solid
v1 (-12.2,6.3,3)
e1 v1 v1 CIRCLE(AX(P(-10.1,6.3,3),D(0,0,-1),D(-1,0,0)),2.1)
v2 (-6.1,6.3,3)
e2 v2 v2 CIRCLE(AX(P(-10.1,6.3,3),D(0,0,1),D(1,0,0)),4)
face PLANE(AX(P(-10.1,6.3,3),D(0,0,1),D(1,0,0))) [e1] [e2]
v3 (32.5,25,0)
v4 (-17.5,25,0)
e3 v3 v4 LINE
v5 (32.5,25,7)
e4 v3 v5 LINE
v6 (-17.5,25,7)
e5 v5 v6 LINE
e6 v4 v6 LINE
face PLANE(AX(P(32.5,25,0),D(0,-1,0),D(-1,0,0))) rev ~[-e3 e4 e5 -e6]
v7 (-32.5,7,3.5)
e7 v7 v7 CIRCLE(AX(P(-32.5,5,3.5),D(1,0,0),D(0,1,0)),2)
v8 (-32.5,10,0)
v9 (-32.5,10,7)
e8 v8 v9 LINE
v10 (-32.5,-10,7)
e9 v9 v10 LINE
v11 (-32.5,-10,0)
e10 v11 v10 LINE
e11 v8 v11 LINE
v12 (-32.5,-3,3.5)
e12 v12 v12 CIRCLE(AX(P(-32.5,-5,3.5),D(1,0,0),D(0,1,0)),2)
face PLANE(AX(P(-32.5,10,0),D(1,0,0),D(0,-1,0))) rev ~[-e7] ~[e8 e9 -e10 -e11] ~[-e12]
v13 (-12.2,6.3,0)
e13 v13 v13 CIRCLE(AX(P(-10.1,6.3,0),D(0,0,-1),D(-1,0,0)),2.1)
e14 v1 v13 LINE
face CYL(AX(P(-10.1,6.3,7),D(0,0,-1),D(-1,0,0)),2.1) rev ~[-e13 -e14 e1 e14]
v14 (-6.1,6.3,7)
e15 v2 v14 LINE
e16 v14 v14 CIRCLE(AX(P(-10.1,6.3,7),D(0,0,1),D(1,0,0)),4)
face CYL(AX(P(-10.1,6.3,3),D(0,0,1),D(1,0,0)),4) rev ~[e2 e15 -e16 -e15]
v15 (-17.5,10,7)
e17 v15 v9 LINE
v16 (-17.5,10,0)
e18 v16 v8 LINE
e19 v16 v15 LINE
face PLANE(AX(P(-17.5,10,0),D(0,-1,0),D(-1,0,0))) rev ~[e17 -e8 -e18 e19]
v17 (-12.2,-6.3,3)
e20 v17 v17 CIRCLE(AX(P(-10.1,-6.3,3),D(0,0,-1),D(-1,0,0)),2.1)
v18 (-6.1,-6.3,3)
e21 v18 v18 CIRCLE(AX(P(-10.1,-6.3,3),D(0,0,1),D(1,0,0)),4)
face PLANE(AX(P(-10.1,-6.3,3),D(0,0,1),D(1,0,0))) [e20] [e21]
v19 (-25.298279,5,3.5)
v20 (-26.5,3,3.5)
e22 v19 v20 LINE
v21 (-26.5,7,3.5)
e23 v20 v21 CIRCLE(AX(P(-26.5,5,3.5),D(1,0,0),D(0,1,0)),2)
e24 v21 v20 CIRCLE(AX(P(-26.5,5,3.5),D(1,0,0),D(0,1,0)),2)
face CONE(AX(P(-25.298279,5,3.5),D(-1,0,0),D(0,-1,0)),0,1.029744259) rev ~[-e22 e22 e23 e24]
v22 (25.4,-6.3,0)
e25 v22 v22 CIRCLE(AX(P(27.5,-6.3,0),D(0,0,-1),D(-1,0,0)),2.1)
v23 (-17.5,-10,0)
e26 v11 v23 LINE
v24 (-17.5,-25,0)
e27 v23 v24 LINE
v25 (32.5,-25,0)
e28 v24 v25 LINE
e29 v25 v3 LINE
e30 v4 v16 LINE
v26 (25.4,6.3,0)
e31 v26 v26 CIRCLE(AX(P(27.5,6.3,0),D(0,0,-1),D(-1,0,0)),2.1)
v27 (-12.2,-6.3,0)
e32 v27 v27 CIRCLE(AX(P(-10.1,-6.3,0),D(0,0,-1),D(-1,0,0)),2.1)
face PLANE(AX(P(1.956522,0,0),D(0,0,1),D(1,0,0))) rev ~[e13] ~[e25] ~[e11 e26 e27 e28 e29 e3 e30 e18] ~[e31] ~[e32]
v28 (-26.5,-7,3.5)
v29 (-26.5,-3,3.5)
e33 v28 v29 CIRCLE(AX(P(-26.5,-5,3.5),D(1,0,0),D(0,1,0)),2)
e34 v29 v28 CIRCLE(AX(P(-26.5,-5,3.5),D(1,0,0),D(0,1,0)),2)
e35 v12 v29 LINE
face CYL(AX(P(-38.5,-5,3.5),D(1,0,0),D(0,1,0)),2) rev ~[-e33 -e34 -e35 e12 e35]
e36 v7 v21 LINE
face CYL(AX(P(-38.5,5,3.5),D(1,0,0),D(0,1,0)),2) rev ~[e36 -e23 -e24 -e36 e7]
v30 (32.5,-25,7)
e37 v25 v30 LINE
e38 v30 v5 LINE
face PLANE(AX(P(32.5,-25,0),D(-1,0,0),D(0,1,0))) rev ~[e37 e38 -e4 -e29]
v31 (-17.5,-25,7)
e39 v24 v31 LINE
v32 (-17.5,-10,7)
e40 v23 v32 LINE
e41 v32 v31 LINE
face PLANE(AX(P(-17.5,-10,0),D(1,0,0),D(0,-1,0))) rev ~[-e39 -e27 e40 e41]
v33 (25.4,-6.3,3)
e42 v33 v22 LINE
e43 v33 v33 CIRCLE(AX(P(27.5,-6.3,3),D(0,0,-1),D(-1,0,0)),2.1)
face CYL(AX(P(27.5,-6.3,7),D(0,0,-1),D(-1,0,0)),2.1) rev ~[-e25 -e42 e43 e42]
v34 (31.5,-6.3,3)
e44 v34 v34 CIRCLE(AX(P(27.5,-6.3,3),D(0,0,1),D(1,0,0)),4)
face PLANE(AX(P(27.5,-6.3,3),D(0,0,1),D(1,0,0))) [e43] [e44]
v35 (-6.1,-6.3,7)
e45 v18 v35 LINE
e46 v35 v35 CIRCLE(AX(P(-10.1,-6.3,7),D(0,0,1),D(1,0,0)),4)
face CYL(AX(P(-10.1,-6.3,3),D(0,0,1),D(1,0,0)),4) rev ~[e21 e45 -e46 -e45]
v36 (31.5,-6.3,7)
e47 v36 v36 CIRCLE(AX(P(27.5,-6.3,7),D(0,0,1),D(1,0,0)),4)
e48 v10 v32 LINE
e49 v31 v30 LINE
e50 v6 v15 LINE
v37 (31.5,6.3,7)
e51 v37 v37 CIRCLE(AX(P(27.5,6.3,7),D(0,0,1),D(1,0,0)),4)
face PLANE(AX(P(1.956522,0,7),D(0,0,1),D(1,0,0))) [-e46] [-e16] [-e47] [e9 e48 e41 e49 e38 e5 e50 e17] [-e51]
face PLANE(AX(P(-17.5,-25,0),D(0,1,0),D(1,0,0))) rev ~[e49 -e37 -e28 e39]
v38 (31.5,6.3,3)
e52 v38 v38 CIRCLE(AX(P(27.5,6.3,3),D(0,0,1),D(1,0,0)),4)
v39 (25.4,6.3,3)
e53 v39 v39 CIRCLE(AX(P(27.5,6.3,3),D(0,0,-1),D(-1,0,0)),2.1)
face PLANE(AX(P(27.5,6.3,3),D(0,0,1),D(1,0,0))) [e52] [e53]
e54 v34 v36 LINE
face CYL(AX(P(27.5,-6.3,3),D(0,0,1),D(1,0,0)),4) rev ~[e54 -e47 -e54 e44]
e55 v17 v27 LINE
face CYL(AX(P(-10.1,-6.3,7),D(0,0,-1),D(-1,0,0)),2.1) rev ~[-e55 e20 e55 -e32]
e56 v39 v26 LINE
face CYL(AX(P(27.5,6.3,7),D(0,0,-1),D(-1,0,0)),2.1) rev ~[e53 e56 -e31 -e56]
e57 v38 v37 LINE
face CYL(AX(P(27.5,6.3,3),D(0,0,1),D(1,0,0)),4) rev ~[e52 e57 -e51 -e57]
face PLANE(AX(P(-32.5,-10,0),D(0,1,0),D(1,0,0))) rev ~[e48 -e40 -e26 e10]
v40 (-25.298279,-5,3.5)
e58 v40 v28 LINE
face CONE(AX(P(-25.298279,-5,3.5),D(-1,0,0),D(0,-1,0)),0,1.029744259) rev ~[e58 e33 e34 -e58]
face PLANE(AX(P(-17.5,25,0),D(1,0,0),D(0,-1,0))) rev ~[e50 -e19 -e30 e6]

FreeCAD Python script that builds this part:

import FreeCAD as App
import Part
import Sketcher
from FreeCAD import Vector


def add_polygon(sketch, points):
    """Adds a closed chain of lines whose ends are joined by coincident constraints."""
    first, n = sketch.GeometryCount, len(points)
    for a, b in zip(points, points[1:] + points[:1]):
        sketch.addGeometry(Part.LineSegment(App.Vector(*a, 0), App.Vector(*b, 0)), False)
    for i in range(n):
        sketch.addConstraint(Sketcher.Constraint("Coincident", first + i, 2, first + (i + 1) % n, 1))

doc = App.newDocument("Part")
body = doc.addObject("PartDesign::Body", "Body")

# Sketch on XY plane
sketch1 = body.newObject("Sketcher::SketchObject", "Sketch")
sketch1.AttachmentSupport = (doc.getObject("XY_Plane"), [""])
sketch1.MapMode = "FlatFace"
add_polygon(sketch1, [(32, -25), (32, 25), (-18, 25), (-18, 10), (-32, 10), (-32, -10), (-18, -10), (-18, -25)])  # lines 0-7
sketch1.addConstraint([
    Sketcher.Constraint("Vertical", 0),
    Sketcher.Constraint("Horizontal", 1),
    Sketcher.Constraint("Vertical", 2),
    Sketcher.Constraint("Horizontal", 3),
    Sketcher.Constraint("Vertical", 4),
    Sketcher.Constraint("Horizontal", 5),
    Sketcher.Constraint("Vertical", 6),
    Sketcher.Constraint("Horizontal", 7),
    Sketcher.Constraint("Symmetric", 2, 2, 5, 2, -1),
    Sketcher.Constraint("Equal", 7, 0),
    Sketcher.Constraint("Equal", 5, 2),
    Sketcher.Constraint("Equal", 2, 6),
    Sketcher.Constraint("DistanceX", 1, 2, 1, 1, 50.0),
    Sketcher.Constraint("DistanceX", 3, 2, 3, 1, 15.0),
    Sketcher.Constraint("DistanceX", -1, 1, 0, 2, 32.5),
])
pad1 = body.newObject("PartDesign::Pad", "Pad")
pad1.Profile = sketch1
pad1.Length = 7

# Sketch on YZ plane
sketch2 = body.newObject("Sketcher::SketchObject", "Sketch001")
sketch2.AttachmentSupport = (doc.getObject("YZ_Plane"), [""])
sketch2.MapMode = "FlatFace"
sketch2.AttachmentOffset = App.Placement(Vector(0, 0, -32.5), App.Rotation())
sketch2.addGeometry([
    Part.Circle(Vector(5, 3.5, 0), Vector(0, 0, 1), 2),
    Part.Circle(Vector(-5, 3.5, 0), Vector(0, 0, 1), 2),
], False)
sketch2.addConstraint([
    Sketcher.Constraint("Equal", 0, 1),
    Sketcher.Constraint("Symmetric", 0, 3, 1, 3, -2),
    Sketcher.Constraint("Diameter", 0, 4.0),
    Sketcher.Constraint("DistanceX", -1, 1, 0, 3, 5.0),
    Sketcher.Constraint("DistanceY", -1, 1, 0, 3, 3.5),
])
doc.recompute()
hole = body.newObject("PartDesign::Hole", "Hole")
hole.Profile = sketch2
hole.ThreadType = "None"
hole.Diameter = 4
hole.DepthType = "Dimension"
hole.Depth = 6
hole.DrillPoint = "Angled"
hole.DrillPointAngle = 118
hole.Reversed = True

# Sketch on XY plane
sketch3 = body.newObject("Sketcher::SketchObject", "Sketch002")
sketch3.AttachmentSupport = (doc.getObject("XY_Plane"), [""])
sketch3.MapMode = "FlatFace"
sketch3.AttachmentOffset = App.Placement(Vector(0, 0, 7), App.Rotation())
sketch3.addGeometry([
    Part.Circle(Vector(-10.1, 6.3, 0), Vector(0, 0, 1), 2.1),
    Part.Circle(Vector(-10.1, -6.3, 0), Vector(0, 0, 1), 2.1),
    Part.Circle(Vector(27.5, -6.3, 0), Vector(0, 0, 1), 2.1),
    Part.Circle(Vector(27.5, 6.3, 0), Vector(0, 0, 1), 2.1),
], False)
sketch3.addConstraint([
    Sketcher.Constraint("Equal", 0, 1),
    Sketcher.Constraint("Equal", 1, 2),
    Sketcher.Constraint("Equal", 2, 3),
    Sketcher.Constraint("Symmetric", 0, 3, 1, 3, -1),
    Sketcher.Constraint("Symmetric", 2, 3, 3, 3, -1),
    Sketcher.Constraint("Horizontal", 1, 3, 2, 3),
    Sketcher.Constraint("Diameter", 0, 4.2),
    Sketcher.Constraint("DistanceX", 0, 3, -1, 1, 10.1),
    Sketcher.Constraint("DistanceY", -1, 1, 0, 3, 6.3),
    Sketcher.Constraint("DistanceX", -1, 1, 2, 3, 27.5),
])
doc.recompute()
hole2 = body.newObject("PartDesign::Hole", "Hole001")
hole2.Profile = sketch3
hole2.ThreadType = "None"
hole2.Diameter = 4.2
hole2.DepthType = "ThroughAll"
hole2.HoleCutType = "Counterbore"
hole2.HoleCutDiameter = 8
hole2.HoleCutDepth = 4

doc.recompute()
